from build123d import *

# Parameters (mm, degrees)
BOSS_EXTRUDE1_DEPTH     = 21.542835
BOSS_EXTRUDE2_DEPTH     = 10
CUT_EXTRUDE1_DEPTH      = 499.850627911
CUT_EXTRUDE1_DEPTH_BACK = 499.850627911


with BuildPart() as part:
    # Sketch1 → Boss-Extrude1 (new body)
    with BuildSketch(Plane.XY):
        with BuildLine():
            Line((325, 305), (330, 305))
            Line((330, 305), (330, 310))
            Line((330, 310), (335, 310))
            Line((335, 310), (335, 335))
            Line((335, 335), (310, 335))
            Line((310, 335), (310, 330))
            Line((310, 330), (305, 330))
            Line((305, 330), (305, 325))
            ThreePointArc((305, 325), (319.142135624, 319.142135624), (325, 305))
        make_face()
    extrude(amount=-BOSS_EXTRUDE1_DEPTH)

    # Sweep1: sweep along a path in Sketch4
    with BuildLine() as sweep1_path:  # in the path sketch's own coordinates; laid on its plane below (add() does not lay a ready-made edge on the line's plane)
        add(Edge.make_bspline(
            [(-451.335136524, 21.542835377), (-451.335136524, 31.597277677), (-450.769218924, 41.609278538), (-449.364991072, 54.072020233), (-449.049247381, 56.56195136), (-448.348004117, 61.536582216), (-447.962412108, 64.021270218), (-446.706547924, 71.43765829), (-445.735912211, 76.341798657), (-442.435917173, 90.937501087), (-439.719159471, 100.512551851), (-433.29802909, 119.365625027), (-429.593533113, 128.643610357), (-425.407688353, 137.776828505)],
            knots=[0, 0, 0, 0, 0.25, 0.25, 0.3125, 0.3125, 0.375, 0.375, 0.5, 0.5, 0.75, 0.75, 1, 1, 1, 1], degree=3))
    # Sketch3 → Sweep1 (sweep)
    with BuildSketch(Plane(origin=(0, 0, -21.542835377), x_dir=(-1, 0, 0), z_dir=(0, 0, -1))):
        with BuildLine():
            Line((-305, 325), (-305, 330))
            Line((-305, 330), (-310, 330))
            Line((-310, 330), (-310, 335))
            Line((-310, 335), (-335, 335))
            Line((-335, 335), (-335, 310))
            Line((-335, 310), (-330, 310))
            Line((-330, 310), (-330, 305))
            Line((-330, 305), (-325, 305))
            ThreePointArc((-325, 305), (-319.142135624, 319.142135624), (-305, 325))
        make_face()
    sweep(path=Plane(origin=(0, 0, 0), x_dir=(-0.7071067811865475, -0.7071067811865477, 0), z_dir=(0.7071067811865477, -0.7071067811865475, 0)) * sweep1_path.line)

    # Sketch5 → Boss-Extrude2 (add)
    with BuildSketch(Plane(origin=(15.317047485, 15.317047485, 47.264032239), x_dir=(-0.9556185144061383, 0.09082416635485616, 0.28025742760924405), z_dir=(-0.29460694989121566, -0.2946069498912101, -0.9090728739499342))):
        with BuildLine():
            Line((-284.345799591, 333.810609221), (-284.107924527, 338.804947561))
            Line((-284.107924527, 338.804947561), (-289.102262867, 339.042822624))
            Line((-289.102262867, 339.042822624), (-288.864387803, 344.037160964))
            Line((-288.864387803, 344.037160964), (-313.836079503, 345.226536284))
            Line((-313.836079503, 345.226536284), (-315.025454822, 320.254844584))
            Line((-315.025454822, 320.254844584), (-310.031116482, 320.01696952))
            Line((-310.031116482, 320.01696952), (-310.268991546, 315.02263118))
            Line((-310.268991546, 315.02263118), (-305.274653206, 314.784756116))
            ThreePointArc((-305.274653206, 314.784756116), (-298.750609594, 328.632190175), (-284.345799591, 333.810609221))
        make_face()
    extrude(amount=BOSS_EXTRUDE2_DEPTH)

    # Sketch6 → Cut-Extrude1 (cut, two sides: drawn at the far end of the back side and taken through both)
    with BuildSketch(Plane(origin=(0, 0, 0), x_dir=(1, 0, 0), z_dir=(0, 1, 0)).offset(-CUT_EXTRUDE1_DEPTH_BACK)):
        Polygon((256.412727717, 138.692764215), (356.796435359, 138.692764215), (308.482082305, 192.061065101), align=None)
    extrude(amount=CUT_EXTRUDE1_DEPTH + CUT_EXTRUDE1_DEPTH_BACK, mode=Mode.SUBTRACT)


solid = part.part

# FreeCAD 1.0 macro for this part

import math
import FreeCAD as App
import Part
import Sketcher

V = App.Vector
Q = App.Units.Quantity


def add_polygon(sketch, points):
    """Adds a closed chain of lines whose ends are joined by coincident constraints."""
    first, n = sketch.GeometryCount, len(points)
    for a, b in zip(points, points[1:] + points[:1]):
        sketch.addGeometry(Part.LineSegment(App.Vector(*a, 0), App.Vector(*b, 0)), False)
    for i in range(n):
        sketch.addConstraint(Sketcher.Constraint("Coincident", first + i, 2, first + (i + 1) % n, 1))

doc = App.newDocument("Part")
params = doc.addObject("Spreadsheet::Sheet", "Params")
for row, (alias, value) in enumerate([
    ("sketch1_radius", "20 mm"),
    ("sketch1_width", "5 mm"),
    ("pad1_length", "21.542835 mm"),
    ("sketch2_radius", "20 mm"),
    ("sketch2_width", "5 mm"),
    ("sketch4_radius", "20 mm"),
    ("sketch4_length", "5 mm"),
    ("sketch4_length2", "25 mm"),
    ("pad2_length", "10 mm"),
], start=1):
    params.set(f"A{row}", alias)
    params.set(f"B{row}", "=" + value)
    params.setAlias(f"B{row}", alias)

body = doc.addObject("PartDesign::Body", "Body")

# Sketch on XY plane
sketch1 = body.newObject("Sketcher::SketchObject", "Sketch")
sketch1.AttachmentSupport = (doc.getObject("XY_Plane"), [""])
sketch1.MapMode = "FlatFace"
sketch1.addGeometry(Part.LineSegment(V(325, 305, 0), V(330, 305, 0)), False)
sketch1.addGeometry(Part.LineSegment(V(330, 305, 0), V(330, 310, 0)), False)
sketch1.addGeometry(Part.LineSegment(V(330, 310, 0), V(335, 310, 0)), False)
sketch1.addGeometry(Part.LineSegment(V(335, 310, 0), V(335, 335, 0)), False)
sketch1.addGeometry(Part.LineSegment(V(335, 335, 0), V(310, 335, 0)), False)
sketch1.addGeometry(Part.LineSegment(V(310, 335, 0), V(310, 330, 0)), False)
sketch1.addGeometry(Part.LineSegment(V(310, 330, 0), V(305, 330, 0)), False)
sketch1.addGeometry(Part.LineSegment(V(305, 330, 0), V(305, 325, 0)), False)
sketch1.addGeometry(Part.ArcOfCircle(Part.Circle(V(305, 305, 0), V(0, 0, 1), 20), math.radians(0), math.radians(90)), False)
sketch1.addConstraint(Sketcher.Constraint("Coincident", 0, 2, 1, 1))
sketch1.addConstraint(Sketcher.Constraint("Coincident", 1, 2, 2, 1))
sketch1.addConstraint(Sketcher.Constraint("Coincident", 2, 2, 3, 1))
sketch1.addConstraint(Sketcher.Constraint("Coincident", 3, 2, 4, 1))
sketch1.addConstraint(Sketcher.Constraint("Coincident", 4, 2, 5, 1))
sketch1.addConstraint(Sketcher.Constraint("Coincident", 5, 2, 6, 1))
sketch1.addConstraint(Sketcher.Constraint("Coincident", 6, 2, 7, 1))
sketch1.addConstraint(Sketcher.Constraint("Coincident", 7, 2, 8, 2))
sketch1.addConstraint(Sketcher.Constraint("Coincident", 8, 1, 0, 1))
sketch1.addConstraint(Sketcher.Constraint("Horizontal", 0))
sketch1.addConstraint(Sketcher.Constraint("Vertical", 1))
sketch1.addConstraint(Sketcher.Constraint("Horizontal", 2))
sketch1.addConstraint(Sketcher.Constraint("Vertical", 3))
sketch1.addConstraint(Sketcher.Constraint("Horizontal", 4))
sketch1.addConstraint(Sketcher.Constraint("Vertical", 5))
sketch1.addConstraint(Sketcher.Constraint("Horizontal", 6))
sketch1.addConstraint(Sketcher.Constraint("Vertical", 7))
sketch1.addConstraint(Sketcher.Constraint("Horizontal", 8, 3, 0, 2))
sketch1.addConstraint(Sketcher.Constraint("Vertical", 8, 3, 6, 2))
sketch1.addConstraint(Sketcher.Constraint("Equal", 0, 2))
sketch1.addConstraint(Sketcher.Constraint("Equal", 2, 6))
sketch1.addConstraint(Sketcher.Constraint("Equal", 6, 1))
sketch1.addConstraint(Sketcher.Constraint("Equal", 4, 3))
sketch1.addConstraint(Sketcher.Constraint("Equal", 1, 5))
sketch1.addConstraint(Sketcher.Constraint("Radius", 8, Q("20 mm")))
sketch1.addConstraint(Sketcher.Constraint("DistanceX", 0, 1, 0, 2, Q("5 mm")))
sketch1.addConstraint(Sketcher.Constraint("DistanceX", -1, 1, 8, 3, Q("305 mm")))
sketch1.addConstraint(Sketcher.Constraint("DistanceY", -1, 1, 8, 3, Q("305 mm")))
sketch1.setExpression("Constraints[24]", "Params.sketch1_radius")
sketch1.setExpression("Constraints[25]", "Params.sketch1_width")
pad1 = body.newObject("PartDesign::Pad", "Pad")
pad1.Profile = sketch1
pad1.setExpression("Length", "Params.pad1_length")
pad1.Reversed = True

# Sketch on XY plane
sketch2 = body.newObject("Sketcher::SketchObject", "Sketch001")
sketch2.AttachmentSupport = (doc.getObject("XY_Plane"), [""])
sketch2.MapMode = "FlatFace"
sketch2.AttachmentOffset = App.Placement(V(0, 0, -21.542835), App.Rotation())
sketch2.addGeometry(Part.LineSegment(V(305, 325, 0), V(305, 330, 0)), False)
sketch2.addGeometry(Part.LineSegment(V(305, 330, 0), V(310, 330, 0)), False)
sketch2.addGeometry(Part.LineSegment(V(310, 330, 0), V(310, 335, 0)), False)
sketch2.addGeometry(Part.LineSegment(V(310, 335, 0), V(335, 335, 0)), False)
sketch2.addGeometry(Part.LineSegment(V(335, 335, 0), V(335, 310, 0)), False)
sketch2.addGeometry(Part.LineSegment(V(335, 310, 0), V(330, 310, 0)), False)
sketch2.addGeometry(Part.LineSegment(V(330, 310, 0), V(330, 305, 0)), False)
sketch2.addGeometry(Part.LineSegment(V(330, 305, 0), V(325, 305, 0)), False)
sketch2.addGeometry(Part.ArcOfCircle(Part.Circle(V(305, 305, 0), V(0, 0, 1), 20), math.radians(0), math.radians(90)), False)
sketch2.addConstraint(Sketcher.Constraint("Coincident", 0, 2, 1, 1))
sketch2.addConstraint(Sketcher.Constraint("Coincident", 1, 2, 2, 1))
sketch2.addConstraint(Sketcher.Constraint("Coincident", 2, 2, 3, 1))
sketch2.addConstraint(Sketcher.Constraint("Coincident", 3, 2, 4, 1))
sketch2.addConstraint(Sketcher.Constraint("Coincident", 4, 2, 5, 1))
sketch2.addConstraint(Sketcher.Constraint("Coincident", 5, 2, 6, 1))
sketch2.addConstraint(Sketcher.Constraint("Coincident", 6, 2, 7, 1))
sketch2.addConstraint(Sketcher.Constraint("Coincident", 7, 2, 8, 1))
sketch2.addConstraint(Sketcher.Constraint("Coincident", 8, 2, 0, 1))
sketch2.addConstraint(Sketcher.Constraint("Vertical", 0))
sketch2.addConstraint(Sketcher.Constraint("Horizontal", 1))
sketch2.addConstraint(Sketcher.Constraint("Vertical", 2))
sketch2.addConstraint(Sketcher.Constraint("Horizontal", 3))
sketch2.addConstraint(Sketcher.Constraint("Vertical", 4))
sketch2.addConstraint(Sketcher.Constraint("Horizontal", 5))
sketch2.addConstraint(Sketcher.Constraint("Vertical", 6))
sketch2.addConstraint(Sketcher.Constraint("Horizontal", 7))
sketch2.addConstraint(Sketcher.Constraint("Horizontal", 8, 3, 6, 2))
sketch2.addConstraint(Sketcher.Constraint("Vertical", 8, 3, 0, 2))
sketch2.addConstraint(Sketcher.Constraint("Equal", 1, 5))
sketch2.addConstraint(Sketcher.Constraint("Equal", 5, 7))
sketch2.addConstraint(Sketcher.Constraint("Equal", 7, 0))
sketch2.addConstraint(Sketcher.Constraint("Equal", 0, 2))
sketch2.addConstraint(Sketcher.Constraint("Equal", 3, 4))
sketch2.addConstraint(Sketcher.Constraint("Radius", 8, Q("20 mm")))
sketch2.addConstraint(Sketcher.Constraint("DistanceX", 1, 1, 1, 2, Q("5 mm")))
sketch2.addConstraint(Sketcher.Constraint("DistanceX", -1, 1, 8, 3, Q("305 mm")))
sketch2.addConstraint(Sketcher.Constraint("DistanceY", -1, 1, 8, 3, Q("305 mm")))
sketch2.setExpression("Constraints[24]", "Params.sketch2_radius")
sketch2.setExpression("Constraints[25]", "Params.sketch2_width")

# Sketch on an angled plane
sketch3 = body.newObject("Sketcher::SketchObject", "Sketch002")
sketch3.Placement = App.Placement(V(0, 0, 0), App.Rotation(V(0.707106781, 0.707106781, 0), V(0, 0, 0.999999999), V(0.707106781, -0.707106781, 0), "ZXY"))
sketch3.addGeometry(Part.BSplineCurve([V(451.335136, -21.542835, 0), V(451.335136, -31.597278, 0), V(450.769219, -41.609278, 0), V(449.364991, -54.07202, 0), V(449.049247, -56.561951, 0), V(448.348004, -61.536582, 0), V(447.962412, -64.02127, 0), V(446.706548, -71.437658, 0), V(445.735912, -76.341799, 0), V(442.435917, -90.937501, 0), V(439.719159, -100.512552, 0), V(433.298029, -119.365625, 0), V(429.593533, -128.64361, 0), V(425.407688, -137.776828, 0)], [4, 2, 2, 2, 2, 2, 4], [0, 0.25, 0.3125, 0.375, 0.5, 0.75, 1], False, 3, [1, 1, 1, 1, 1, 1, 1, 1, 1, 1, 1, 1, 1, 1], False), False)
sketch3.addConstraint(Sketcher.Constraint("Block", 0))
doc.recompute()

additivepipe = body.newObject("PartDesign::AdditivePipe", "AdditivePipe")
additivepipe.Profile = sketch2
additivepipe.Spine = (sketch3, ["Edge1"])

# Sketch on an angled plane
sketch4 = body.newObject("Sketcher::SketchObject", "Sketch003")
sketch4.Placement = App.Placement(V(15.317047, 15.317047, 47.264032), App.Rotation(V(-0.955618514, 0.090824166, 0.280257428), V(0, 0.951292655, -0.308289286), V(-0.29460695, -0.29460695, -0.909072874), "ZXY"))
sketch4.addGeometry(Part.LineSegment(V(-284.345799, 333.810609, 0), V(-284.107924, 338.804947, 0)), False)
sketch4.addGeometry(Part.LineSegment(V(-284.107924, 338.804947, 0), V(-289.102263, 339.042822, 0)), False)
sketch4.addGeometry(Part.LineSegment(V(-289.102263, 339.042822, 0), V(-288.864388, 344.037161, 0)), False)
sketch4.addGeometry(Part.LineSegment(V(-288.864388, 344.037161, 0), V(-313.836079, 345.226536, 0)), False)
sketch4.addGeometry(Part.LineSegment(V(-313.836079, 345.226536, 0), V(-315.025455, 320.254844, 0)), False)
sketch4.addGeometry(Part.LineSegment(V(-315.025455, 320.254844, 0), V(-310.031116, 320.016969, 0)), False)
sketch4.addGeometry(Part.LineSegment(V(-310.031116, 320.016969, 0), V(-310.268991, 315.022631, 0)), False)
sketch4.addGeometry(Part.LineSegment(V(-310.268991, 315.022631, 0), V(-305.274653, 314.784756, 0)), False)
sketch4.addGeometry(Part.ArcOfCircle(Part.Circle(V(-285.2973, 313.833256, 0), V(0, 0, 1), 20), math.radians(87.273123), math.radians(177.273123)), False)
sketch4.addConstraint(Sketcher.Constraint("Coincident", 0, 2, 1, 1))
sketch4.addConstraint(Sketcher.Constraint("Coincident", 1, 2, 2, 1))
sketch4.addConstraint(Sketcher.Constraint("Coincident", 2, 2, 3, 1))
sketch4.addConstraint(Sketcher.Constraint("Coincident", 3, 2, 4, 1))
sketch4.addConstraint(Sketcher.Constraint("Coincident", 4, 2, 5, 1))
sketch4.addConstraint(Sketcher.Constraint("Coincident", 5, 2, 6, 1))
sketch4.addConstraint(Sketcher.Constraint("Coincident", 6, 2, 7, 1))
sketch4.addConstraint(Sketcher.Constraint("Coincident", 7, 2, 8, 2))
sketch4.addConstraint(Sketcher.Constraint("Coincident", 8, 1, 0, 1))
sketch4.addConstraint(Sketcher.Constraint("Perpendicular", 0, 1))
sketch4.addConstraint(Sketcher.Constraint("Perpendicular", 1, 2))
sketch4.addConstraint(Sketcher.Constraint("Perpendicular", 2, 3))
sketch4.addConstraint(Sketcher.Constraint("Perpendicular", 3, 4))
sketch4.addConstraint(Sketcher.Constraint("Perpendicular", 4, 5))
sketch4.addConstraint(Sketcher.Constraint("Perpendicular", 5, 6))
sketch4.addConstraint(Sketcher.Constraint("Perpendicular", 6, 7))
sketch4.addConstraint(Sketcher.Constraint("Equal", 0, 1))
sketch4.addConstraint(Sketcher.Constraint("Equal", 1, 2))
sketch4.addConstraint(Sketcher.Constraint("Equal", 3, 4))
sketch4.addConstraint(Sketcher.Constraint("Equal", 2, 5))
sketch4.addConstraint(Sketcher.Constraint("Equal", 5, 6))
sketch4.addConstraint(Sketcher.Constraint("Equal", 6, 7))
sketch4.addConstraint(Sketcher.Constraint("Radius", 8, Q("20 mm")))
sketch4.addConstraint(Sketcher.Constraint("Distance", 0, Q("5 mm")))
sketch4.addConstraint(Sketcher.Constraint("Distance", 3, Q("25 mm")))
sketch4.addConstraint(Sketcher.Constraint("DistanceX", 8, 3, -1, 1, Q("285.2973 mm")))
sketch4.addConstraint(Sketcher.Constraint("DistanceX", 8, 1, -1, 1, Q("284.345799 mm")))
sketch4.addConstraint(Sketcher.Constraint("DistanceY", -1, 1, 2, 2, Q("344.037161 mm")))
sketch4.setExpression("Constraints[22]", "Params.sketch4_radius")
sketch4.setExpression("Constraints[23]", "Params.sketch4_length")
sketch4.setExpression("Constraints[24]", "Params.sketch4_length2")
pad2 = body.newObject("PartDesign::Pad", "Pad001")
pad2.Profile = sketch4
pad2.setExpression("Length", "Params.pad2_length")

# Sketch on XZ plane
sketch5 = body.newObject("Sketcher::SketchObject", "Sketch004")
sketch5.AttachmentSupport = (doc.getObject("XZ_Plane"), [""])
sketch5.MapMode = "FlatFace"
add_polygon(sketch5, [(256.412728, -138.692764), (356.796435, -138.692764), (308.482082, -192.061065)])  # lines 0-2
sketch5.addConstraint(Sketcher.Constraint("Horizontal", 0))
sketch5.addConstraint(Sketcher.Constraint("DistanceY", 1, 2, 0, 2, Q("53.368301 mm")))
sketch5.addConstraint(Sketcher.Constraint("Distance", 1, Q("71.989251 mm")))
sketch5.addConstraint(Sketcher.Constraint("Distance", 2, Q("74.561339 mm")))
sketch5.addConstraint(Sketcher.Constraint("DistanceX", -1, 1, 0, 2, Q("356.796435 mm")))
sketch5.addConstraint(Sketcher.Constraint("DistanceY", 0, 2, -1, 1, Q("138.692764 mm")))
pocket1 = body.newObject("PartDesign::Pocket", "Pocket")
pocket1.Profile = sketch5
pocket1.Type = "ThroughAll"
pocket1.Midplane = True

doc.recompute()
